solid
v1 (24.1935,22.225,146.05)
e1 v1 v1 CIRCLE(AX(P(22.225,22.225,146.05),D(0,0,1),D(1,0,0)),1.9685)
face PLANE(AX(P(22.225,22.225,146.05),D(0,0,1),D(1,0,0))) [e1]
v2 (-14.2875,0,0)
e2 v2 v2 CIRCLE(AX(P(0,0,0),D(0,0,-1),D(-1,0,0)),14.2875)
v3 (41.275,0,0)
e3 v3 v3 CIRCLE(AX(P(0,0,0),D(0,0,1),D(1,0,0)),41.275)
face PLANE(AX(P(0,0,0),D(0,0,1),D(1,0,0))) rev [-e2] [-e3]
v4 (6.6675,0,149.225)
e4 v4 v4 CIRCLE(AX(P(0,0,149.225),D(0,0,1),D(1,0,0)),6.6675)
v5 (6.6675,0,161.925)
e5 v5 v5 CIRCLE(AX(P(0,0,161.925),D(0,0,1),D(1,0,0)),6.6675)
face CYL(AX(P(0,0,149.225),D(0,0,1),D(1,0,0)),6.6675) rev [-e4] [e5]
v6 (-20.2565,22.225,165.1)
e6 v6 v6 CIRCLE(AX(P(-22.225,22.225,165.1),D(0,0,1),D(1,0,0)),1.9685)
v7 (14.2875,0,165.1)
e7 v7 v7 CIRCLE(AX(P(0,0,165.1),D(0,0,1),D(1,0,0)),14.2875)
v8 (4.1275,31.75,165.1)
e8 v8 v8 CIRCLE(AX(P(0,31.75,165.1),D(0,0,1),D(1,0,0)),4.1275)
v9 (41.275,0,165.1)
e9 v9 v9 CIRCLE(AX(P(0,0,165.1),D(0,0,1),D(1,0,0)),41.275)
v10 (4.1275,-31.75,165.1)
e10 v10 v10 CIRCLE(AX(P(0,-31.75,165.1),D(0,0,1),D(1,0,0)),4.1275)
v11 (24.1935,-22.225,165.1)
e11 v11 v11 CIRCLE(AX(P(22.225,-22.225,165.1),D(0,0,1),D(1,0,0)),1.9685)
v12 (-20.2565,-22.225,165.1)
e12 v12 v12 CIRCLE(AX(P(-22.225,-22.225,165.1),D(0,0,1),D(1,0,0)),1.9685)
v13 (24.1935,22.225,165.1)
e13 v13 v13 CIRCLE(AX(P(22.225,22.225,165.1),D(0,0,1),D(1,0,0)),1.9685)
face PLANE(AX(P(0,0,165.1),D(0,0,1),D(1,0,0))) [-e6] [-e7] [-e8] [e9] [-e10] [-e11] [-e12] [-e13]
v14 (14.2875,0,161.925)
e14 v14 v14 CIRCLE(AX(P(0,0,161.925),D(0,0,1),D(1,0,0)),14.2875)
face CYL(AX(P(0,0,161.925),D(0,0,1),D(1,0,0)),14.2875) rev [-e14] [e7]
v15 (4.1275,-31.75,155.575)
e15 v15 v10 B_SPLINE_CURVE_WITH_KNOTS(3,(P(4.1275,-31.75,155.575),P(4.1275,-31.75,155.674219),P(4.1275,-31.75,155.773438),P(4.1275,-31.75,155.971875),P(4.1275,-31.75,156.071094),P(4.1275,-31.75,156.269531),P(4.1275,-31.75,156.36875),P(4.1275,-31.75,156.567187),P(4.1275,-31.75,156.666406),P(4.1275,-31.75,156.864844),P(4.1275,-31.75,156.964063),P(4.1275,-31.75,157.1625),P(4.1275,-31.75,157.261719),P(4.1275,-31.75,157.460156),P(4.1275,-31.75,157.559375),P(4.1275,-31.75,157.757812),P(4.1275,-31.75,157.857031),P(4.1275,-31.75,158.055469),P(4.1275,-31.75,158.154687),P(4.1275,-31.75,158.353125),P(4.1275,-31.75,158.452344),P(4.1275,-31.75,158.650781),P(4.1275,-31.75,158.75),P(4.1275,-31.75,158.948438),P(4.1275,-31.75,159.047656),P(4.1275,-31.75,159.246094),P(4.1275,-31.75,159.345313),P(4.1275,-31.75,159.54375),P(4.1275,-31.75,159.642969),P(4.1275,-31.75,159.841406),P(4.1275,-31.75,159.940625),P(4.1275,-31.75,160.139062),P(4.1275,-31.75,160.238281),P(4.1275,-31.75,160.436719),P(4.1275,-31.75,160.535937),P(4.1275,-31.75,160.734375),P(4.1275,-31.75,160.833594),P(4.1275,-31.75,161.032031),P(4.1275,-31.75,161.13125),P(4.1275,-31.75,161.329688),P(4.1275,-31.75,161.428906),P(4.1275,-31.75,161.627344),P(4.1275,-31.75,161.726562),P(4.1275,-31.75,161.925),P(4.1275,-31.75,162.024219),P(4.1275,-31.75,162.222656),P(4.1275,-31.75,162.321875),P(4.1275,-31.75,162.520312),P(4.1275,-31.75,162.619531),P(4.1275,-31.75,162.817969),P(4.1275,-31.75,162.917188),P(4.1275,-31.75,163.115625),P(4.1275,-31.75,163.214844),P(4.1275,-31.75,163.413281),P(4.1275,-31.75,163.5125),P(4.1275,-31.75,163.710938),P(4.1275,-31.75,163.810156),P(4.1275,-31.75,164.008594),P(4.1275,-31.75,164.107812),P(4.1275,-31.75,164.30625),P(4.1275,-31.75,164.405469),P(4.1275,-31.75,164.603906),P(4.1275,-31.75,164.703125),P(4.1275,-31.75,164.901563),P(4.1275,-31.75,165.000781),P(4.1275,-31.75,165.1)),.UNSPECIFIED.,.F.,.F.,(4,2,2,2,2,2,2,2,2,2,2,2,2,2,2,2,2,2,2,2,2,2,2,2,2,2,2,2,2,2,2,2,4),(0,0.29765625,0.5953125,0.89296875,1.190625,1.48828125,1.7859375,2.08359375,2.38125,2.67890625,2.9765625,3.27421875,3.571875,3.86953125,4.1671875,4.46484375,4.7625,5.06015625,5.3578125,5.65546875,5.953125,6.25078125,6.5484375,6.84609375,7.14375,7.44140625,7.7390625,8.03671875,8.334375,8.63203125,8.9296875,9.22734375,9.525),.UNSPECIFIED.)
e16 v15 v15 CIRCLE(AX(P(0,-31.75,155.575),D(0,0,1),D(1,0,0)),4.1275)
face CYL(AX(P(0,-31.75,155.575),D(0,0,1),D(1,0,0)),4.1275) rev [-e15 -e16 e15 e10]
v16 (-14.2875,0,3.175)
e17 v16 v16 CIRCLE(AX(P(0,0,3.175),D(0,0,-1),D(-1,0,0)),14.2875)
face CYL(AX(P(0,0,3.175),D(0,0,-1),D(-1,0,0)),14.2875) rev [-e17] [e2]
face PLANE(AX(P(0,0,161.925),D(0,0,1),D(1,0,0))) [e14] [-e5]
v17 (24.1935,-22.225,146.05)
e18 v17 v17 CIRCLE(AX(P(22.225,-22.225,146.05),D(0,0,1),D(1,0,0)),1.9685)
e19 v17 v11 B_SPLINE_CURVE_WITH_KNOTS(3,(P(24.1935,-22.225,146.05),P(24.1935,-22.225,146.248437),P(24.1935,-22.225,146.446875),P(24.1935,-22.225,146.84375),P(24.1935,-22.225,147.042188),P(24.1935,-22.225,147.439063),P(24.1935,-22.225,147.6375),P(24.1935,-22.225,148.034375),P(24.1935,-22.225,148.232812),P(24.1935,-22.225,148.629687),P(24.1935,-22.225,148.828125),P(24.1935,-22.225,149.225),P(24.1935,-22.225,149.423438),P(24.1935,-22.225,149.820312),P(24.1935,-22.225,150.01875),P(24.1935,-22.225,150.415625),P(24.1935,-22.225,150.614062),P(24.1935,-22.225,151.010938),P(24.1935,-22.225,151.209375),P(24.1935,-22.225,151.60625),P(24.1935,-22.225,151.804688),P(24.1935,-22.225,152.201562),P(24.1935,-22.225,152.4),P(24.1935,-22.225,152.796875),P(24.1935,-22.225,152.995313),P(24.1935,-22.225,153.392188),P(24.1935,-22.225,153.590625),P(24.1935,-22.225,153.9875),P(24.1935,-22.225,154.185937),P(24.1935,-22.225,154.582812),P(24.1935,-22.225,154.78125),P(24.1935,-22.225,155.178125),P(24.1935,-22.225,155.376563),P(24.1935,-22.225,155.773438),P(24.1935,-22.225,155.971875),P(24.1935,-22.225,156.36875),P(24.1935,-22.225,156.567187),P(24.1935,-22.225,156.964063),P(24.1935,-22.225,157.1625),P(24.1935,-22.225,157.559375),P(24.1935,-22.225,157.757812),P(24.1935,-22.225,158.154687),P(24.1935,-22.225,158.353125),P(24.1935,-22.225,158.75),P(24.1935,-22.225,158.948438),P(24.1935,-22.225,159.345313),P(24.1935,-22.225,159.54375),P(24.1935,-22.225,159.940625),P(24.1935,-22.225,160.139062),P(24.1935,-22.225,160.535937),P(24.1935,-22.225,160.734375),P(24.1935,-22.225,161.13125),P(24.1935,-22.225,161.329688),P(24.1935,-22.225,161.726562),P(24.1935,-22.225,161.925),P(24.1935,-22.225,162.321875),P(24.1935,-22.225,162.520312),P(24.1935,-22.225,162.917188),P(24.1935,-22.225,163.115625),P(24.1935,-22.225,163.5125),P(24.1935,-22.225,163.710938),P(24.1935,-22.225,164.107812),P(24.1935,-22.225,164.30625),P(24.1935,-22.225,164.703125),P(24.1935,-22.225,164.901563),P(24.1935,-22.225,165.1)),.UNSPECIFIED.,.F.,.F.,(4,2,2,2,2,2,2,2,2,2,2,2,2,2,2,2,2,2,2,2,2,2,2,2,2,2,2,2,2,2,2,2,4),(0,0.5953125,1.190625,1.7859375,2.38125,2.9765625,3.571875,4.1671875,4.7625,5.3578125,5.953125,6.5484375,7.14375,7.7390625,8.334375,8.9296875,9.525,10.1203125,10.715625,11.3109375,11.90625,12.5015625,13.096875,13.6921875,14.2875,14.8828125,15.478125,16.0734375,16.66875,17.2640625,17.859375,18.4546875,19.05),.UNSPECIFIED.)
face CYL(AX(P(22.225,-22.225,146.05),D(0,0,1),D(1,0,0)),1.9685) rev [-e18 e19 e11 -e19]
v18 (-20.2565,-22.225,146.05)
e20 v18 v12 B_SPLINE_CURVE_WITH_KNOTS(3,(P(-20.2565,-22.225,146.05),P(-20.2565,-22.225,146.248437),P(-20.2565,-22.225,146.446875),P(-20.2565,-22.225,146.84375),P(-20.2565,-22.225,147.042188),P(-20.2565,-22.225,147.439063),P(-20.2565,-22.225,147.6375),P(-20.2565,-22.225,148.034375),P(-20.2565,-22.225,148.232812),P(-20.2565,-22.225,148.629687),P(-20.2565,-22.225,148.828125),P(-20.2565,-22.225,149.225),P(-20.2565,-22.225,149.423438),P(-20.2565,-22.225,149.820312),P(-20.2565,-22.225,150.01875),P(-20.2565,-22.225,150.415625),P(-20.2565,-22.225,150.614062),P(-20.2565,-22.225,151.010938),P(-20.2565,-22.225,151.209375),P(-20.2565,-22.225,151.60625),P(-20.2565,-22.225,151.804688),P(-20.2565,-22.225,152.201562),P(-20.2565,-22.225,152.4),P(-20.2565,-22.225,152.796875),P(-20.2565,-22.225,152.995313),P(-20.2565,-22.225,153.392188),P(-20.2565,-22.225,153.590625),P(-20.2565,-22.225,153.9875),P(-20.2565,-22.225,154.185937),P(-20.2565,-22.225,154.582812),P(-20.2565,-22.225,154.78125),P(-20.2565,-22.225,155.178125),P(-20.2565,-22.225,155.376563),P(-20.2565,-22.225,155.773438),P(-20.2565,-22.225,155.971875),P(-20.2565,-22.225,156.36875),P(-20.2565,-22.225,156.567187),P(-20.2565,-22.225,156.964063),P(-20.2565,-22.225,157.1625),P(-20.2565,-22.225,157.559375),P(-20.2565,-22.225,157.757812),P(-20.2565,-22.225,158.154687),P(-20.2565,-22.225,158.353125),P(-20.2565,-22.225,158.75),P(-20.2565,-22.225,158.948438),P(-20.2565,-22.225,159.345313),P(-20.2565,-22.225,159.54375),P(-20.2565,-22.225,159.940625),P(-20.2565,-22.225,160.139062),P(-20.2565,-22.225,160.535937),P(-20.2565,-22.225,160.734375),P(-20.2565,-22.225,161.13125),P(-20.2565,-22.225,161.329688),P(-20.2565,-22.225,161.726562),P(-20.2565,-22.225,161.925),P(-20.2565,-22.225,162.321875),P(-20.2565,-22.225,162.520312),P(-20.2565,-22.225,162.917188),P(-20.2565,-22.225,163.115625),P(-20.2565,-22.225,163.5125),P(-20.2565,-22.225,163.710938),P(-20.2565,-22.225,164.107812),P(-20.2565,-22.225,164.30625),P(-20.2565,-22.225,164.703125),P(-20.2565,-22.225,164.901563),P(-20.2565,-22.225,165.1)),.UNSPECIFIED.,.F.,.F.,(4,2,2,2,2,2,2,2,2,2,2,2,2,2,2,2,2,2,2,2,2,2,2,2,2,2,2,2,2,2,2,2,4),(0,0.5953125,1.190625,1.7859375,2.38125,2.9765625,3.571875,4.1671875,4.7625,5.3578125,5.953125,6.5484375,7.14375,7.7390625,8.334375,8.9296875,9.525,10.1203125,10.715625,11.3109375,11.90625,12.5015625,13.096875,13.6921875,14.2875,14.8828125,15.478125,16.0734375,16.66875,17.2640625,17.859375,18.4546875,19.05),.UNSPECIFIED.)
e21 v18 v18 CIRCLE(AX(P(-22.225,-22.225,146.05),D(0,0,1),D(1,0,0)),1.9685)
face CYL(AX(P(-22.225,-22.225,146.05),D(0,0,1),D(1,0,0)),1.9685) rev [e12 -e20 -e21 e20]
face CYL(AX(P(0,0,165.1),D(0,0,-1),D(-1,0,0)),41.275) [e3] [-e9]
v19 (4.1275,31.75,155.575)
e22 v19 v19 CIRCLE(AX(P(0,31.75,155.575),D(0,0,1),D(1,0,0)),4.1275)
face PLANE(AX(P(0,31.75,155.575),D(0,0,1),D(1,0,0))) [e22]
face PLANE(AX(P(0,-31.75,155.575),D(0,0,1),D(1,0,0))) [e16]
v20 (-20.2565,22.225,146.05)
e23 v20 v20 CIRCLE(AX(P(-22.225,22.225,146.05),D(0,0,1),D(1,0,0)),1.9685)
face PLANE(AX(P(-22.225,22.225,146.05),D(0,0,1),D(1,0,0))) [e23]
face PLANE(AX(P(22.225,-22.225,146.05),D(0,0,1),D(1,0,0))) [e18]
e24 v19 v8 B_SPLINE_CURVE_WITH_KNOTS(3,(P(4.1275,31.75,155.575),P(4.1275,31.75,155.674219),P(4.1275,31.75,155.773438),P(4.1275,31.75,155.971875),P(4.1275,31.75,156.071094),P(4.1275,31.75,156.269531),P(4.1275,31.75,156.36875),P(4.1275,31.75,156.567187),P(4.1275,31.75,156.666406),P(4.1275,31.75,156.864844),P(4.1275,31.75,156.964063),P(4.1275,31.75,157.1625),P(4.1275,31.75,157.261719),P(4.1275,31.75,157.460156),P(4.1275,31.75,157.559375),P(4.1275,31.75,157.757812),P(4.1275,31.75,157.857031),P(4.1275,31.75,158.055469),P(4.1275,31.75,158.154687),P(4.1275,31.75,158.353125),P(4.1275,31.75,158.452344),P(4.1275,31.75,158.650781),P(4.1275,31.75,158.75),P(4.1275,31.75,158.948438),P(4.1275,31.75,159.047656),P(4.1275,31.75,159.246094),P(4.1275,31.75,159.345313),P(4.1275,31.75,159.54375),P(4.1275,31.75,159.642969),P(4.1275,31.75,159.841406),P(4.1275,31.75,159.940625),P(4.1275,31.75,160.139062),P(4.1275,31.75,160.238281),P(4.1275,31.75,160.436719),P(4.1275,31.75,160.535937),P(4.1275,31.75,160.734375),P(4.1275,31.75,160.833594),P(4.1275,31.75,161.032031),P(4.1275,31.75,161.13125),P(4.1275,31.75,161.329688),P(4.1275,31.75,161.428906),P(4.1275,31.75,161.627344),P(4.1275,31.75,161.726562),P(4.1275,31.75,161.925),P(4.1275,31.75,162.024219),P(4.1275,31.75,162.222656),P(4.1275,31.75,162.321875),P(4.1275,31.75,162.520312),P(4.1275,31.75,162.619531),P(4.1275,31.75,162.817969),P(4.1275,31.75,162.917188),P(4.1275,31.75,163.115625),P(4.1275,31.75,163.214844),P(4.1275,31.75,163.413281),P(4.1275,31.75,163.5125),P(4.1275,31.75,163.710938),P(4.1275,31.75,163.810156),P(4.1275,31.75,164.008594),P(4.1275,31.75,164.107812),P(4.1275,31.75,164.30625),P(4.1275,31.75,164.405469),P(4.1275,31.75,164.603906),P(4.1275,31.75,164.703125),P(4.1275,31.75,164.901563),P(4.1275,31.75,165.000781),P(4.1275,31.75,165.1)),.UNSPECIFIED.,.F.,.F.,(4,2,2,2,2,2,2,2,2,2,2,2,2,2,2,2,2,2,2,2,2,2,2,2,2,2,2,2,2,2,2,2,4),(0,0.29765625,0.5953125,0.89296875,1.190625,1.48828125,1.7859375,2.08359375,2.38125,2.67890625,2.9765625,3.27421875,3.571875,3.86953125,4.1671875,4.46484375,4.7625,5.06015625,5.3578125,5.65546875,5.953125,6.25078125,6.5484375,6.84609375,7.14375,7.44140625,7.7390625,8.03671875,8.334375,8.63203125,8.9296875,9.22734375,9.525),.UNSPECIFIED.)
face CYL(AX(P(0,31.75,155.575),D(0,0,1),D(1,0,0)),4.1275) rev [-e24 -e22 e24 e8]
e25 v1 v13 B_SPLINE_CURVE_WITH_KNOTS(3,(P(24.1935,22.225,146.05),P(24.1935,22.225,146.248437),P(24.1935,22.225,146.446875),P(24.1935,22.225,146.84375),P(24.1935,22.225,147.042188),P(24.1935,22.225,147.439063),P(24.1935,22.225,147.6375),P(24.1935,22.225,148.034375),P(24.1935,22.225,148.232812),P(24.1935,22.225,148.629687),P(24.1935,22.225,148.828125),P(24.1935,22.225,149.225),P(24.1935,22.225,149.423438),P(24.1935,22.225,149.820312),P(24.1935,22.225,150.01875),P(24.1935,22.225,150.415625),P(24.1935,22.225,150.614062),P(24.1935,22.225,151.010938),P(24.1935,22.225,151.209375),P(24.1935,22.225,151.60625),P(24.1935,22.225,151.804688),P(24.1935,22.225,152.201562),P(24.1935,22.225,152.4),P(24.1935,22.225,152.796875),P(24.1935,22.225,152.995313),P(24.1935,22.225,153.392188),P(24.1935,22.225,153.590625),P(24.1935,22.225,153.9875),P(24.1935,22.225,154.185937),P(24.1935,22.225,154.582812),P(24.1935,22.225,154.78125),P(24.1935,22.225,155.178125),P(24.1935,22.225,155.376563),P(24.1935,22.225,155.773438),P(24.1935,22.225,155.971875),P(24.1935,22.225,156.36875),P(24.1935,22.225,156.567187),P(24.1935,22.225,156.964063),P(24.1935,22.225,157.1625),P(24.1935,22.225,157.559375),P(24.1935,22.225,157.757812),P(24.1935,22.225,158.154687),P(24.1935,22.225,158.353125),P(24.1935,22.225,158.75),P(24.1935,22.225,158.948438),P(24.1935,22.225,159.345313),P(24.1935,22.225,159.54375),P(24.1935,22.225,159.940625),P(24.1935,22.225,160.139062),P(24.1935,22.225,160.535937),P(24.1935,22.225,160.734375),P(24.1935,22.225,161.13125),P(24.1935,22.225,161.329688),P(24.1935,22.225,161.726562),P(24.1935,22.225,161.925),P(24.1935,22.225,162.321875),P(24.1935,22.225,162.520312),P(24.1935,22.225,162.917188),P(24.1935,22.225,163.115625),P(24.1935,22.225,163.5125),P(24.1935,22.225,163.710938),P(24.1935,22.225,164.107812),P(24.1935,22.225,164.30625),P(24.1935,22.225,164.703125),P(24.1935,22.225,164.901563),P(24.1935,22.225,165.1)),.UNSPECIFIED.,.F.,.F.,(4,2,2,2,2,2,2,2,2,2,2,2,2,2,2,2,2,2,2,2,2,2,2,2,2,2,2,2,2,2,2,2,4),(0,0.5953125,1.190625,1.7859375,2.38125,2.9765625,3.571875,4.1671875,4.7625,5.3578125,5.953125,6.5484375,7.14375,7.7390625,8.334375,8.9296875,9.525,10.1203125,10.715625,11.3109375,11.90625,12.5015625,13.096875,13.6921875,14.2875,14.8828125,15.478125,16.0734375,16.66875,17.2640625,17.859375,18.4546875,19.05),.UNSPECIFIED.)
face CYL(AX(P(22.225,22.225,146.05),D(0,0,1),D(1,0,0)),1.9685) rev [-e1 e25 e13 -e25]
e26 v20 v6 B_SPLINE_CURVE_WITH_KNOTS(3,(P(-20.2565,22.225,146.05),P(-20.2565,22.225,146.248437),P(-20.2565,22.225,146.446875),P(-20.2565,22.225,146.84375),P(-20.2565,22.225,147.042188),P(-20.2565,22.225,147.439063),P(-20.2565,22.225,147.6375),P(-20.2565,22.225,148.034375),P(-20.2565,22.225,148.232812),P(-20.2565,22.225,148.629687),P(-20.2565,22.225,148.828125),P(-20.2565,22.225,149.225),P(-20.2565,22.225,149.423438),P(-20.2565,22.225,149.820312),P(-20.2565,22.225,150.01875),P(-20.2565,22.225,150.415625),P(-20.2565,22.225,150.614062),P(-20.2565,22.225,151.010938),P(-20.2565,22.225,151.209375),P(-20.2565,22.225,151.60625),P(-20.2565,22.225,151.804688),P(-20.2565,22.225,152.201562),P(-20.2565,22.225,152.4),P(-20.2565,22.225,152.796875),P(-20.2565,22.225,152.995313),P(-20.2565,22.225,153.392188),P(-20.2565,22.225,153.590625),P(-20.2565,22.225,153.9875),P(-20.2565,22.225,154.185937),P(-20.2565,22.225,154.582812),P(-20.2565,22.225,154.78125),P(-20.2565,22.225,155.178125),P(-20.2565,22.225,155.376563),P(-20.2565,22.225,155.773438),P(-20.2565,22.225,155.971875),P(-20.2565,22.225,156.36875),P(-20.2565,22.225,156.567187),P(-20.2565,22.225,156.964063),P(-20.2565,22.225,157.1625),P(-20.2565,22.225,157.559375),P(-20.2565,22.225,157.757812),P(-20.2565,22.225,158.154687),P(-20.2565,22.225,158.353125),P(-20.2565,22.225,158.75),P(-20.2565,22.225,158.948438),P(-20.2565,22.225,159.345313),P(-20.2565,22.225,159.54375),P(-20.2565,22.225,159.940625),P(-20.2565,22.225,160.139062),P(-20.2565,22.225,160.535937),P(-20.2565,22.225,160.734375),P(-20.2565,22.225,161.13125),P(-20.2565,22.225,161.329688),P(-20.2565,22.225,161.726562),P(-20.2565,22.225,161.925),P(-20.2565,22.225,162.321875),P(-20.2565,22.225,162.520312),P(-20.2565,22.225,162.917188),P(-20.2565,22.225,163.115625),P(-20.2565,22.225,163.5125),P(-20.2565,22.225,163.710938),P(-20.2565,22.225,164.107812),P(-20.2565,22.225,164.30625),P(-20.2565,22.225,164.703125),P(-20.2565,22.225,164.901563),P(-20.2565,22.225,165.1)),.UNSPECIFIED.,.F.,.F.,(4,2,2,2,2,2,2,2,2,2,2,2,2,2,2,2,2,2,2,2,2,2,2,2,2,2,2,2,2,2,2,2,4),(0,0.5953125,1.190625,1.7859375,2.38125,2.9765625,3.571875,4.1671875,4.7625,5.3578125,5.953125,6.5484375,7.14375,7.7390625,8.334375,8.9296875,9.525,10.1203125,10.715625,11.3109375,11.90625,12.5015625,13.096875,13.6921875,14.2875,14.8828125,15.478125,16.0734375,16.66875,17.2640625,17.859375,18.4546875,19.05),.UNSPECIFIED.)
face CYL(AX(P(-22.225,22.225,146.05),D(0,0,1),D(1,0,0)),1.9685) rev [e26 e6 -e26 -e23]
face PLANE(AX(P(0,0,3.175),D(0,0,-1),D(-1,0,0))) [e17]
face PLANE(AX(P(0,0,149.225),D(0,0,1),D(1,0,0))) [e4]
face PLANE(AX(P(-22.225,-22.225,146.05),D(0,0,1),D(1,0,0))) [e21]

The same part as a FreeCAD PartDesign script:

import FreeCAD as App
import Part
import Sketcher

V = App.Vector
Q = App.Units.Quantity

doc = App.newDocument("Part")
body = doc.addObject("PartDesign::Body", "Body")

# Sketch on XY plane
sketch1 = body.newObject("Sketcher::SketchObject", "Sketch")
sketch1.AttachmentSupport = (doc.getObject("XY_Plane"), [""])
sketch1.MapMode = "FlatFace"
sketch1.addGeometry(Part.Circle(V(0, 0, 0), V(0, 0, 1), 41.275), False)
sketch1.addConstraint(Sketcher.Constraint("Coincident", 0, 3, -1, 1))
sketch1.addConstraint(Sketcher.Constraint("Diameter", 0, Q("3.25 in")))
pad1 = body.newObject("PartDesign::Pad", "Pad")
pad1.Profile = sketch1
pad1.Length = Q("6.5 in")

# Sketch on XY plane
sketch2 = body.newObject("Sketcher::SketchObject", "Sketch001")
sketch2.AttachmentSupport = (doc.getObject("XY_Plane"), [""])
sketch2.MapMode = "FlatFace"
sketch2.AttachmentOffset = App.Placement(V(0, 0, 6.5 * 25.4), App.Rotation())
sketch2.addGeometry(Part.Circle(V(0, 0, 0), V(0, 0, 1), 14.2875), False)
sketch2.addConstraint(Sketcher.Constraint("Coincident", 0, 3, -1, 1))
sketch2.addConstraint(Sketcher.Constraint("Diameter", 0, Q("1.125 in")))
pocket1 = body.newObject("PartDesign::Pocket", "Pocket")
pocket1.Profile = sketch2
pocket1.Length = Q("0.125 in")

# Sketch on XY plane
sketch3 = body.newObject("Sketcher::SketchObject", "Sketch002")
sketch3.AttachmentSupport = (doc.getObject("XY_Plane"), [""])
sketch3.MapMode = "FlatFace"
sketch3.AttachmentOffset = App.Placement(V(0, 0, 6.375 * 25.4), App.Rotation())
sketch3.addGeometry(Part.Circle(V(0, 0, 0), V(0, 0, 1), 6.6675), False)
sketch3.addConstraint(Sketcher.Constraint("Coincident", 0, 3, -1, 1))
sketch3.addConstraint(Sketcher.Constraint("Diameter", 0, Q("0.525 in")))
pocket2 = body.newObject("PartDesign::Pocket", "Pocket001")
pocket2.Profile = sketch3
pocket2.Length = Q("0.5 in")

# Sketch on XY plane
sketch4 = body.newObject("Sketcher::SketchObject", "Sketch003")
sketch4.AttachmentSupport = (doc.getObject("XY_Plane"), [""])
sketch4.MapMode = "FlatFace"
sketch4.AttachmentOffset = App.Placement(V(0, 0, 6.5 * 25.4), App.Rotation())
sketch4.addGeometry(Part.Circle(V(0, 31.75, 0), V(0, 0, 1), 4.1275), False)
sketch4.addGeometry(Part.Circle(V(0, -31.75, 0), V(0, 0, 1), 4.1275), False)
sketch4.addConstraint(Sketcher.Constraint("Equal", 0, 1))
sketch4.addConstraint(Sketcher.Constraint("Symmetric", 0, 3, 1, 3, -1, 1))
sketch4.addConstraint(Sketcher.Constraint("PointOnObject", 0, 3, -2))
sketch4.addConstraint(Sketcher.Constraint("Diameter", 0, Q("0.325 in")))
sketch4.addConstraint(Sketcher.Constraint("DistanceY", 1, 3, 0, 3, Q("2.5 in")))
pocket3 = body.newObject("PartDesign::Pocket", "Pocket002")
pocket3.Profile = sketch4
pocket3.Length = Q("0.375 in")

# Sketch on XY plane
sketch5 = body.newObject("Sketcher::SketchObject", "Sketch004")
sketch5.AttachmentSupport = (doc.getObject("XY_Plane"), [""])
sketch5.MapMode = "FlatFace"
sketch5.AttachmentOffset = App.Placement(V(0, 0, 6.5 * 25.4), App.Rotation())
sketch5.addGeometry(Part.Circle(V(-22.225, 22.225, 0), V(0, 0, 1), 1.9685), False)
sketch5.addGeometry(Part.Circle(V(-22.225, -22.225, 0), V(0, 0, 1), 1.9685), False)
sketch5.addGeometry(Part.Circle(V(22.225, -22.225, 0), V(0, 0, 1), 1.9685), False)
sketch5.addGeometry(Part.Circle(V(22.225, 22.225, 0), V(0, 0, 1), 1.9685), False)
sketch5.addConstraint(Sketcher.Constraint("Equal", 0, 1))
sketch5.addConstraint(Sketcher.Constraint("Equal", 1, 2))
sketch5.addConstraint(Sketcher.Constraint("Equal", 2, 3))
sketch5.addConstraint(Sketcher.Constraint("Symmetric", 0, 3, 2, 3, -1, 1))
sketch5.addConstraint(Sketcher.Constraint("Symmetric", 1, 3, 3, 3, -1, 1))
sketch5.addConstraint(Sketcher.Constraint("Symmetric", 1, 3, 2, 3, -2))
sketch5.addConstraint(Sketcher.Constraint("Diameter", 0, Q("0.155 in")))
sketch5.addConstraint(Sketcher.Constraint("DistanceY", 1, 3, 0, 3, Q("1.75 in")))
sketch5.addConstraint(Sketcher.Constraint("DistanceX", 1, 3, 2, 3, Q("1.75 in")))
pocket4 = body.newObject("PartDesign::Pocket", "Pocket003")
pocket4.Profile = sketch5
pocket4.Length = Q("0.75 in")

# Sketch on XY plane
sketch6 = body.newObject("Sketcher::SketchObject", "Sketch005")
sketch6.AttachmentSupport = (doc.getObject("XY_Plane"), [""])
sketch6.MapMode = "FlatFace"
sketch6.AttachmentOffset = App.Placement(V(0, 0, 0.125 * 25.4), App.Rotation())
sketch6.addGeometry(Part.Circle(V(0, 0, 0), V(0, 0, 1), 14.2875), False)
sketch6.addConstraint(Sketcher.Constraint("Coincident", 0, 3, -1, 1))
sketch6.addConstraint(Sketcher.Constraint("Diameter", 0, Q("1.125 in")))
pocket5 = body.newObject("PartDesign::Pocket", "Pocket004")
pocket5.Profile = sketch6
pocket5.Length = Q("0.125 in")

doc.recompute()
